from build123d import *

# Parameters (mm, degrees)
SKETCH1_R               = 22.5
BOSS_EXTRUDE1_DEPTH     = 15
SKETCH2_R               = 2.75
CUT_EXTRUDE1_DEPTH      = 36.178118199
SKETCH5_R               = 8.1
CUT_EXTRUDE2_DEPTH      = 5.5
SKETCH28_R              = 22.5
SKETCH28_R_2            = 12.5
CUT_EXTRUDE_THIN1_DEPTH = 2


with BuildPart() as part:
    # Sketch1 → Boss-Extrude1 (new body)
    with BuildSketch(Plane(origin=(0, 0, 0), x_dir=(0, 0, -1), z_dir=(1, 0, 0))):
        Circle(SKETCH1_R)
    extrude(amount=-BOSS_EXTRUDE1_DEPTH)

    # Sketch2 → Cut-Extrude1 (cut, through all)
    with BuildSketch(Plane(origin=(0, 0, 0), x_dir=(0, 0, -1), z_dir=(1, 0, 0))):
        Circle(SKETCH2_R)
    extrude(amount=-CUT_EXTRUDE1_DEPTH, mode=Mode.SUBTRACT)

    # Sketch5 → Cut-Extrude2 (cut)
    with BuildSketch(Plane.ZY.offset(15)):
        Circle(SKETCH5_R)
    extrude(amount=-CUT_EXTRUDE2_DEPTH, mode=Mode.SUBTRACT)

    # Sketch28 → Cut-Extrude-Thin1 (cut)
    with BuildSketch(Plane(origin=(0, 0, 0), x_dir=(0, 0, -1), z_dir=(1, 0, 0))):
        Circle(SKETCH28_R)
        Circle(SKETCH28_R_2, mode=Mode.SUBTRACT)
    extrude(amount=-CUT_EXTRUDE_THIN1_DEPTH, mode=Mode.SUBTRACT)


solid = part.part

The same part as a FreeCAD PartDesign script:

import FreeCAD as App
import Part
import Sketcher

V = App.Vector
Q = App.Units.Quantity

doc = App.newDocument("Part")
params = doc.addObject("Spreadsheet::Sheet", "Params")
for row, (alias, value) in enumerate([
    ("sketch1_diameter", "45 mm"),
    ("pad1_length", "15 mm"),
    ("sketch2_diameter", "5.5 mm"),
    ("sketch3_diameter", "16.2 mm"),
    ("pocket2_length", "5.5 mm"),
    ("sketch4_diameter", "45 mm"),
    ("sketch4_diameter2", "25 mm"),
    ("pocket3_length", "2 mm"),
], start=1):
    params.set(f"A{row}", alias)
    params.set(f"B{row}", "=" + value)
    params.setAlias(f"B{row}", alias)

body = doc.addObject("PartDesign::Body", "Body")

# Sketch on YZ plane
sketch1 = body.newObject("Sketcher::SketchObject", "Sketch")
sketch1.AttachmentSupport = (doc.getObject("YZ_Plane"), [""])
sketch1.MapMode = "FlatFace"
sketch1.addGeometry(Part.Circle(V(0, 0, 0), V(0, 0, 1), 22), False)
sketch1.addConstraint(Sketcher.Constraint("Coincident", 0, 3, -1, 1))
sketch1.addConstraint(Sketcher.Constraint("Diameter", 0, Q("45 mm")))
sketch1.setExpression("Constraints[1]", "Params.sketch1_diameter")
pad1 = body.newObject("PartDesign::Pad", "Pad")
pad1.Profile = sketch1
pad1.setExpression("Length", "Params.pad1_length")
pad1.Reversed = True

# Sketch on YZ plane
sketch2 = body.newObject("Sketcher::SketchObject", "Sketch001")
sketch2.AttachmentSupport = (doc.getObject("YZ_Plane"), [""])
sketch2.MapMode = "FlatFace"
sketch2.addGeometry(Part.Circle(V(0, 0, 0), V(0, 0, 1), 2.8), False)
sketch2.addConstraint(Sketcher.Constraint("Coincident", 0, 3, -1, 1))
sketch2.addConstraint(Sketcher.Constraint("Diameter", 0, Q("5.5 mm")))
sketch2.setExpression("Constraints[1]", "Params.sketch2_diameter")
pocket1 = body.newObject("PartDesign::Pocket", "Pocket")
pocket1.Profile = sketch2
pocket1.Type = "ThroughAll"

# Sketch on YZ plane
sketch3 = body.newObject("Sketcher::SketchObject", "Sketch002")
sketch3.AttachmentSupport = (doc.getObject("YZ_Plane"), [""])
sketch3.MapMode = "FlatFace"
sketch3.AttachmentOffset = App.Placement(V(0, 0, -15), App.Rotation())
sketch3.addGeometry(Part.Circle(V(0, 0, 0), V(0, 0, 1), 8), False)
sketch3.addConstraint(Sketcher.Constraint("Coincident", 0, 3, -1, 1))
sketch3.addConstraint(Sketcher.Constraint("Diameter", 0, Q("16.2 mm")))
sketch3.setExpression("Constraints[1]", "Params.sketch3_diameter")
pocket2 = body.newObject("PartDesign::Pocket", "Pocket001")
pocket2.Profile = sketch3
pocket2.setExpression("Length", "Params.pocket2_length")
pocket2.Reversed = True

# Sketch on YZ plane
sketch4 = body.newObject("Sketcher::SketchObject", "Sketch003")
sketch4.AttachmentSupport = (doc.getObject("YZ_Plane"), [""])
sketch4.MapMode = "FlatFace"
sketch4.addGeometry(Part.Circle(V(0, 0, 0), V(0, 0, 1), 22), False)
sketch4.addGeometry(Part.Circle(V(0, 0, 0), V(0, 0, 1), 12), False)
sketch4.addConstraint(Sketcher.Constraint("Coincident", 0, 3, -1, 1))
sketch4.addConstraint(Sketcher.Constraint("Coincident", 1, 3, -1, 1))
sketch4.addConstraint(Sketcher.Constraint("Diameter", 0, Q("45 mm")))
sketch4.addConstraint(Sketcher.Constraint("Diameter", 1, Q("25 mm")))
sketch4.setExpression("Constraints[2]", "Params.sketch4_diameter")
sketch4.setExpression("Constraints[3]", "Params.sketch4_diameter2")
pocket3 = body.newObject("PartDesign::Pocket", "Pocket002")
pocket3.Profile = sketch4
pocket3.setExpression("Length", "Params.pocket3_length")

doc.recompute()
